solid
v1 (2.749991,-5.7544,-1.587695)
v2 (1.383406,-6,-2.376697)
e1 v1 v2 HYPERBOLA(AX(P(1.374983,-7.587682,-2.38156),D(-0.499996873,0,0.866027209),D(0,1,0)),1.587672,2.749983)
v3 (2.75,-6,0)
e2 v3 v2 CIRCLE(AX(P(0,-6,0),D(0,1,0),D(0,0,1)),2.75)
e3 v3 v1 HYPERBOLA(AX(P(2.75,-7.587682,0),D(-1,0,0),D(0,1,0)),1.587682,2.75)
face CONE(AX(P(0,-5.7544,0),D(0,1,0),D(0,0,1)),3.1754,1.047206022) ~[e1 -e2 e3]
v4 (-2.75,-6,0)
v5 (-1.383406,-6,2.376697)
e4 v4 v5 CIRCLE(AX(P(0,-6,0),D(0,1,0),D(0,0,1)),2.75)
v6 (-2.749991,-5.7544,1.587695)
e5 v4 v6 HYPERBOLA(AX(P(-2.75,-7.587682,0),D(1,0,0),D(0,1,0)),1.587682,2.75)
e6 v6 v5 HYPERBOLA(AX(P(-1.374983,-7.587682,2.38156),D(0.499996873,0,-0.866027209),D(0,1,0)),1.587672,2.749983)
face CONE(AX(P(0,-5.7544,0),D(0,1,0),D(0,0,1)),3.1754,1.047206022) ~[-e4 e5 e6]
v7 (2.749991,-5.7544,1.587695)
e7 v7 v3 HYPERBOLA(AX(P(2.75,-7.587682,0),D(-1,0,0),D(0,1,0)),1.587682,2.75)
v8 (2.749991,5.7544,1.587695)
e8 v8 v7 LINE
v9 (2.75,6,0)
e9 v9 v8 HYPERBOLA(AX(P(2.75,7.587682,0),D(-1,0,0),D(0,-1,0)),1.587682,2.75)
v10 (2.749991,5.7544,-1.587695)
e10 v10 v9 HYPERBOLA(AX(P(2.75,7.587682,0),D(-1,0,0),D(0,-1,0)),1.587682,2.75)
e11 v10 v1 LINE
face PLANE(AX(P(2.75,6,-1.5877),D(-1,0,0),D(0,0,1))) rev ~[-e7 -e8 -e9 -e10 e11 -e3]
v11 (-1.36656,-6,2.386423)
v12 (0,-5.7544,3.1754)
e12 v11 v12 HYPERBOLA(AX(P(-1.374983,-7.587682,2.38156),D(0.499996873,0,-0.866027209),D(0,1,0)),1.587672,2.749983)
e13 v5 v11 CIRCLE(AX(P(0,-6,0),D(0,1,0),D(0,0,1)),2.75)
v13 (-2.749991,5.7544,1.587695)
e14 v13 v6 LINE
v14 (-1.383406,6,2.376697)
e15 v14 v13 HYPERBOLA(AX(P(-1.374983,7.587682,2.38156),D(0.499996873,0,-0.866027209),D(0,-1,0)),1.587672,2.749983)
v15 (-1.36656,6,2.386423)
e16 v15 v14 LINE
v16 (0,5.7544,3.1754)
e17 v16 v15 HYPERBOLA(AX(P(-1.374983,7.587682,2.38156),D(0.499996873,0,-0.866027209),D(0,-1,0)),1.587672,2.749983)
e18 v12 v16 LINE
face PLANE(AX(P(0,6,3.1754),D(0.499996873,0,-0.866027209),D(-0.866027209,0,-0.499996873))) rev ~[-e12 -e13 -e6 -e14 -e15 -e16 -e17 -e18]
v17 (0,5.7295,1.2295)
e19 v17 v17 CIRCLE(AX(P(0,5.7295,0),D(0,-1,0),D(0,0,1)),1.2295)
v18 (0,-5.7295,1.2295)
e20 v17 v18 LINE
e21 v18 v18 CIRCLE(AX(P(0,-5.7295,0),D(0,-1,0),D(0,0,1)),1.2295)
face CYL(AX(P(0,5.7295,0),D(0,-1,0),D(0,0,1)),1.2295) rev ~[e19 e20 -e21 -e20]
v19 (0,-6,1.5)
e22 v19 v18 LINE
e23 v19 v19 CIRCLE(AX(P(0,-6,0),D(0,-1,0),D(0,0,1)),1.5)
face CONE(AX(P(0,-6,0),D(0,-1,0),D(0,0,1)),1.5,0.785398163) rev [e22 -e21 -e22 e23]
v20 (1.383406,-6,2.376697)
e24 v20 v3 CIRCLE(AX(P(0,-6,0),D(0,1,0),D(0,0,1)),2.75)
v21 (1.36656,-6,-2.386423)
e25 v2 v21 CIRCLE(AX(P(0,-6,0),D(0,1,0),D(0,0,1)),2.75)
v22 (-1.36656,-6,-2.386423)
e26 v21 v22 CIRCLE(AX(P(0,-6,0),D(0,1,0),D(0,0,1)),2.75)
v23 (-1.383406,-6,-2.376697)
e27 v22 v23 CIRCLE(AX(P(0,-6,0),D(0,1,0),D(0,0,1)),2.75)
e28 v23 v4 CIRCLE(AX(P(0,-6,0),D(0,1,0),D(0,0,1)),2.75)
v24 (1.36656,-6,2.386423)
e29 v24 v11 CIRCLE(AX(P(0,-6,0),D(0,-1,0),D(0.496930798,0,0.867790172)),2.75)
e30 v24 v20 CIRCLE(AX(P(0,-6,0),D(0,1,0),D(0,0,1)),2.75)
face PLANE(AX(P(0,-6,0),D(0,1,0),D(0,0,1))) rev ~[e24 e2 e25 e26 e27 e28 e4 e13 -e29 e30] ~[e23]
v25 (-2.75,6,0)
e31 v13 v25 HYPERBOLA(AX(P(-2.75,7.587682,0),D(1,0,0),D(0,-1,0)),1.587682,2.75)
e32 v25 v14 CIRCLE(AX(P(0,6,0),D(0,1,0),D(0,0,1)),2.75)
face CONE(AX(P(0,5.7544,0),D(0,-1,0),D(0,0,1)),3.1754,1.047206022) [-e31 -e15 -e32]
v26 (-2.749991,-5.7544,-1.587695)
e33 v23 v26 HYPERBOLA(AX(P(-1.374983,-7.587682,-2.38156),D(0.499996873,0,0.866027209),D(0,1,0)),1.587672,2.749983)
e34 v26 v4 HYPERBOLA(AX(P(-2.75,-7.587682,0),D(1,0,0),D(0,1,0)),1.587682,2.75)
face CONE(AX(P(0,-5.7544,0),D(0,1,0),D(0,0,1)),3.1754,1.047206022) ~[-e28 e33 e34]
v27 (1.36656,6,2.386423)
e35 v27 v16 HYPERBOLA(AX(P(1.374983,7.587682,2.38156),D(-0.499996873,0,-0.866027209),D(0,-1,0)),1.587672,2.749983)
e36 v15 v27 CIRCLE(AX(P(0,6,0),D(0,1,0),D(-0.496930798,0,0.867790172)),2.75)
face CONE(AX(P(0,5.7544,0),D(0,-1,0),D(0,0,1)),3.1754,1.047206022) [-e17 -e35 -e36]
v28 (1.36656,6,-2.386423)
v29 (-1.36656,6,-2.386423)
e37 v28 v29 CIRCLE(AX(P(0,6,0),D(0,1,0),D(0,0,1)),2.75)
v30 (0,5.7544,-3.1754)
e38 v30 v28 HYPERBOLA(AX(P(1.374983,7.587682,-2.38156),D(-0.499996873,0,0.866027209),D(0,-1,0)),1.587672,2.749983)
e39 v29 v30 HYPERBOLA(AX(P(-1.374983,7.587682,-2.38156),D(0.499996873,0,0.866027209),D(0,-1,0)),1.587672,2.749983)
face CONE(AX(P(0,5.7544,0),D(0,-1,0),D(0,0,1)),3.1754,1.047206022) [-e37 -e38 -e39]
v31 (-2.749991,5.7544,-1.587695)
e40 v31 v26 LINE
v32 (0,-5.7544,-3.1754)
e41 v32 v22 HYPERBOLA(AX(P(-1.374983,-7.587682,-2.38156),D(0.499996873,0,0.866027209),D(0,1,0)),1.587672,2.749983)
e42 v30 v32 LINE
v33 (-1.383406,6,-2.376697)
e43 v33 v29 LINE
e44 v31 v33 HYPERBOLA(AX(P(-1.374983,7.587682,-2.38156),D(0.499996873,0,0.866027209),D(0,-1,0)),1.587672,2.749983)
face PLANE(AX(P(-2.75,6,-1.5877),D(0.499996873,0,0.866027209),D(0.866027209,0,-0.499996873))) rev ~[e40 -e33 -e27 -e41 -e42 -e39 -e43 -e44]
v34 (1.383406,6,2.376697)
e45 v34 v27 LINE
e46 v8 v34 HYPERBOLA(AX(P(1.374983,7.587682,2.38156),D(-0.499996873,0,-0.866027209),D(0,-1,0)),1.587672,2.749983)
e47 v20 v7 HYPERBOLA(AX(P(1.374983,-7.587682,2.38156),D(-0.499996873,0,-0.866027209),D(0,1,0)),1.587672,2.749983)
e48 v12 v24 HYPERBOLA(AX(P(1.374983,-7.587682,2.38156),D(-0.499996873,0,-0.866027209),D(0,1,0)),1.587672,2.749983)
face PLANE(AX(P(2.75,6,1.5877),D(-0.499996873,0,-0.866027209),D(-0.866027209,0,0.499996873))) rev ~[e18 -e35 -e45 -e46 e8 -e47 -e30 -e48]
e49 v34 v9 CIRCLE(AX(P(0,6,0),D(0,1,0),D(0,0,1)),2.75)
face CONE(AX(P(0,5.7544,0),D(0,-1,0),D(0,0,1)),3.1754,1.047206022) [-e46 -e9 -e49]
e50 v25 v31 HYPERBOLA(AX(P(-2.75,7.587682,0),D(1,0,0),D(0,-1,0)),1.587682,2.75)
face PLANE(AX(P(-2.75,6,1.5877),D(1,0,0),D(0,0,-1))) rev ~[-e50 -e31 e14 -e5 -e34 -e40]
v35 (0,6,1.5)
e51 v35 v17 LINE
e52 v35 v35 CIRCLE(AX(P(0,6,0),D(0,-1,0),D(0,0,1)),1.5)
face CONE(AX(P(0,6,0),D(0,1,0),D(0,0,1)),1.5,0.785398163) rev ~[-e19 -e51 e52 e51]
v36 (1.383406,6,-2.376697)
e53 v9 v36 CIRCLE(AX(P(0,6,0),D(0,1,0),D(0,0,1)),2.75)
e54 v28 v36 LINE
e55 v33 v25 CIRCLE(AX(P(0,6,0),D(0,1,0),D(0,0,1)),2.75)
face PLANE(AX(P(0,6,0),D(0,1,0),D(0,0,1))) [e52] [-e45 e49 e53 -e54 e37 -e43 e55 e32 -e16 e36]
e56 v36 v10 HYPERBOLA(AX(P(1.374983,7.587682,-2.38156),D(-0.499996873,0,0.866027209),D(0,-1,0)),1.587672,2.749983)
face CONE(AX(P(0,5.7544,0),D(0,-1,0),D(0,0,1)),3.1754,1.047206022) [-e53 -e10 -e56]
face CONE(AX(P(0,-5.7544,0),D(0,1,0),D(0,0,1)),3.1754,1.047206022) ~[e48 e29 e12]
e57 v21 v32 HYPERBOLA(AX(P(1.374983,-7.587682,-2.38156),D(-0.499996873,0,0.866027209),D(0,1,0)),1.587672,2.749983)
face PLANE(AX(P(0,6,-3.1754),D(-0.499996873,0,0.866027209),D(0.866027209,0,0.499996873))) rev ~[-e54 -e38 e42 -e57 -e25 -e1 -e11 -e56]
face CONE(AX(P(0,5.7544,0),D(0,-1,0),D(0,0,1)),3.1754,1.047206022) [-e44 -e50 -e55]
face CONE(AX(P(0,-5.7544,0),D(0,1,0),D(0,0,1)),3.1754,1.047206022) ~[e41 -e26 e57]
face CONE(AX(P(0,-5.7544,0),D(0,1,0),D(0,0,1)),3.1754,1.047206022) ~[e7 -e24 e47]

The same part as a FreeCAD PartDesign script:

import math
import FreeCAD as App
import Part
import Sketcher

V = App.Vector
Q = App.Units.Quantity


def add_polygon(sketch, points):
    """Adds a closed chain of lines whose ends are joined by coincident constraints."""
    first, n = sketch.GeometryCount, len(points)
    for a, b in zip(points, points[1:] + points[:1]):
        sketch.addGeometry(Part.LineSegment(App.Vector(*a, 0), App.Vector(*b, 0)), False)
    for i in range(n):
        sketch.addConstraint(Sketcher.Constraint("Coincident", first + i, 2, first + (i + 1) % n, 1))

doc = App.newDocument("Part")
params = doc.addObject("Spreadsheet::Sheet", "Params")
for row, (alias, value) in enumerate([
    ("sketch1_width", "12 mm"),
    ("sketch1_height", "2.75 mm"),
    ("revolution_angle", "360 deg"),
    ("hole_diameter", "2.459 mm"),
    ("hole_csink_diameter", "3 mm"),
], start=1):
    params.set(f"A{row}", alias)
    params.set(f"B{row}", "=" + value)
    params.setAlias(f"B{row}", alias)

body = doc.addObject("PartDesign::Body", "Body")

# Sketch on YZ plane
sketch1 = doc.addObject("Sketcher::SketchObject", "Sketch")
body.addObject(sketch1)
sketch1.AttachmentSupport = (doc.YZ_Plane, [""])
sketch1.MapMode = "FlatFace"
add_polygon(sketch1, [(-6, 2.75), (-6, 0), (6, 0), (6, 2.75), (5.75, 3.18), (-5.75, 3.18)])  # lines 0-5
sketch1.addConstraint([
    Sketcher.Constraint("Vertical", 0),
    Sketcher.Constraint("Horizontal", 1),
    Sketcher.Constraint("Vertical", 2),
    Sketcher.Constraint("Horizontal", 4),
    Sketcher.Constraint("Symmetric", 0, 2, 1, 2, -1, 1),
    Sketcher.Constraint("Horizontal", 2, 2, 5, 2),
    Sketcher.Constraint("Equal", 3, 5),
    Sketcher.Constraint("DistanceX", 1, 1, 1, 2, 12.0),
    Sketcher.Constraint("DistanceY", 0, 2, 0, 1, 2.75),
    Sketcher.Constraint("Angle", 3, Q("119.9995 deg")),
    Sketcher.Constraint("DistanceY", -1, 1, 3, 2, 3.1754),
])
sketch1.setExpression("Constraints[13]", "Params.sketch1_width")
sketch1.setExpression("Constraints[14]", "Params.sketch1_height")
revolution = doc.addObject("PartDesign::Revolution", "Revolution")
body.addObject(revolution)
revolution.Profile = sketch1
revolution.ReferenceAxis = (sketch1, ["H_Axis"])
revolution.setExpression("Angle", "Params.revolution_angle")

# Sketch on XZ plane
sketch2 = doc.addObject("Sketcher::SketchObject", "Sketch001")
body.addObject(sketch2)
sketch2.AttachmentSupport = (doc.XZ_Plane, [""])
sketch2.MapMode = "FlatFace"
sketch2.AttachmentOffset = App.Placement(V(0, 0, -6), App.Rotation())
sketch2.addGeometry([
    Part.ArcOfCircle(Part.Circle(V(0, 0, 0), V(0, 0, 1), 3.2), math.radians(-30), math.radians(30)),  # 0
    Part.LineSegment(V(2.8, 1.6, 0), V(2.8, -1.6, 0)),  # 1
    Part.LineSegment(V(0, -3.2, 0), V(2.8, -1.6, 0)),  # 2
    Part.ArcOfCircle(Part.Circle(V(0, 0, 0), V(0, 0, 1), 3.2), math.radians(-90), math.radians(-30)),  # 3
    Part.ArcOfCircle(Part.Circle(V(0, 0, 0), V(0, 0, 1), 3.2), math.radians(30), math.radians(90)),  # 4
    Part.LineSegment(V(0, 3.2, 0), V(2.8, 1.6, 0)),  # 5
    Part.LineSegment(V(-2.8, -1.6, 0), V(0, -3.2, 0)),  # 6
    Part.ArcOfCircle(Part.Circle(V(0, 0, 0), V(0, 0, 1), 3.2), math.radians(-150), math.radians(-90)),  # 7
    Part.ArcOfCircle(Part.Circle(V(0, 0, 0), V(0, 0, 1), 3.2), math.radians(90), math.radians(150)),  # 8
    Part.LineSegment(V(0, 3.2, 0), V(-2.8, 1.6, 0)),  # 9
    Part.LineSegment(V(-2.8, 1.6, 0), V(-2.8, -1.6, 0)),  # 10
    Part.ArcOfCircle(Part.Circle(V(0, 0, 0), V(0, 0, 1), 3.2), math.radians(150), math.radians(210)),  # 11
], False)
sketch2.addConstraint([
    Sketcher.Constraint("Coincident", 0, 1, 1, 2),
    Sketcher.Constraint("Coincident", 1, 1, 0, 2),
    Sketcher.Constraint("Coincident", 2, 1, 3, 1),
    Sketcher.Constraint("Coincident", 3, 2, 2, 2),
    Sketcher.Constraint("Coincident", 4, 1, 5, 2),
    Sketcher.Constraint("Coincident", 5, 1, 4, 2),
    Sketcher.Constraint("Coincident", 6, 1, 7, 1),
    Sketcher.Constraint("Coincident", 7, 2, 6, 2),
    Sketcher.Constraint("Coincident", 8, 1, 9, 1),
    Sketcher.Constraint("Coincident", 9, 2, 8, 2),
    Sketcher.Constraint("Coincident", 10, 1, 11, 1),
    Sketcher.Constraint("Coincident", 11, 2, 10, 2),
    Sketcher.Constraint("Vertical", 1),
    Sketcher.Constraint("Vertical", 10),
    Sketcher.Constraint("Coincident", 0, 3, -1, 1),
    Sketcher.Constraint("Coincident", 3, 3, -1, 1),
    Sketcher.Constraint("Coincident", 4, 3, -1, 1),
    Sketcher.Constraint("Coincident", 7, 3, -1, 1),
    Sketcher.Constraint("Coincident", 8, 3, -1, 1),
    Sketcher.Constraint("Coincident", 11, 3, -1, 1),
    Sketcher.Constraint("Coincident", 3, 2, 0, 1),
    Sketcher.Constraint("Coincident", 4, 1, 1, 1),
    Sketcher.Constraint("Coincident", 7, 2, 2, 1),
    Sketcher.Constraint("Coincident", 8, 1, 5, 1),
    Sketcher.Constraint("Coincident", 10, 1, 9, 2),
    Sketcher.Constraint("PointOnObject", 2, 1, -2),
    Sketcher.Constraint("PointOnObject", 5, 1, -2),
    Sketcher.Constraint("Parallel", 5, 6),
    Sketcher.Constraint("Parallel", 2, 9),
    Sketcher.Constraint("Angle", 2, Q("29.9998 deg")),
    Sketcher.Constraint("Radius", 0, 3.1754),
])
pocket1 = doc.addObject("PartDesign::Pocket", "Pocket")
body.addObject(pocket1)
pocket1.Profile = sketch2
pocket1.Type = "ThroughAll"
pocket1.Reversed = True

# Sketch on XZ plane
sketch3 = doc.addObject("Sketcher::SketchObject", "Sketch002")
body.addObject(sketch3)
sketch3.AttachmentSupport = (doc.XZ_Plane, [""])
sketch3.MapMode = "FlatFace"
sketch3.AttachmentOffset = App.Placement(V(0, 0, -6), App.Rotation())
sketch3.addGeometry(Part.Circle(V(0, 0, 0), V(0, 0, 1), 1.2), False)
sketch3.addConstraint([
    Sketcher.Constraint("Coincident", 0, 3, -1, 1),
    Sketcher.Constraint("Diameter", 0, 2.459),
])
doc.recompute()
hole = doc.addObject("PartDesign::Hole", "Hole")
body.addObject(hole)
hole.Profile = sketch3
hole.ThreadType = "None"
hole.setExpression("Diameter", "Params.hole_diameter")
hole.DepthType = "ThroughAll"
hole.HoleCutType = "Countersink"
hole.setExpression("HoleCutDiameter", "Params.hole_csink_diameter")
hole.HoleCutCountersinkAngle = 90
hole.Reversed = True
doc.recompute()

mirrored = doc.addObject("PartDesign::Mirrored", "Mirrored")
body.addObject(mirrored)
mirrored.Originals = [hole]
mirrored.MirrorPlane = (doc.XZ_Plane, [""])
body.Tip = mirrored

doc.recompute()
